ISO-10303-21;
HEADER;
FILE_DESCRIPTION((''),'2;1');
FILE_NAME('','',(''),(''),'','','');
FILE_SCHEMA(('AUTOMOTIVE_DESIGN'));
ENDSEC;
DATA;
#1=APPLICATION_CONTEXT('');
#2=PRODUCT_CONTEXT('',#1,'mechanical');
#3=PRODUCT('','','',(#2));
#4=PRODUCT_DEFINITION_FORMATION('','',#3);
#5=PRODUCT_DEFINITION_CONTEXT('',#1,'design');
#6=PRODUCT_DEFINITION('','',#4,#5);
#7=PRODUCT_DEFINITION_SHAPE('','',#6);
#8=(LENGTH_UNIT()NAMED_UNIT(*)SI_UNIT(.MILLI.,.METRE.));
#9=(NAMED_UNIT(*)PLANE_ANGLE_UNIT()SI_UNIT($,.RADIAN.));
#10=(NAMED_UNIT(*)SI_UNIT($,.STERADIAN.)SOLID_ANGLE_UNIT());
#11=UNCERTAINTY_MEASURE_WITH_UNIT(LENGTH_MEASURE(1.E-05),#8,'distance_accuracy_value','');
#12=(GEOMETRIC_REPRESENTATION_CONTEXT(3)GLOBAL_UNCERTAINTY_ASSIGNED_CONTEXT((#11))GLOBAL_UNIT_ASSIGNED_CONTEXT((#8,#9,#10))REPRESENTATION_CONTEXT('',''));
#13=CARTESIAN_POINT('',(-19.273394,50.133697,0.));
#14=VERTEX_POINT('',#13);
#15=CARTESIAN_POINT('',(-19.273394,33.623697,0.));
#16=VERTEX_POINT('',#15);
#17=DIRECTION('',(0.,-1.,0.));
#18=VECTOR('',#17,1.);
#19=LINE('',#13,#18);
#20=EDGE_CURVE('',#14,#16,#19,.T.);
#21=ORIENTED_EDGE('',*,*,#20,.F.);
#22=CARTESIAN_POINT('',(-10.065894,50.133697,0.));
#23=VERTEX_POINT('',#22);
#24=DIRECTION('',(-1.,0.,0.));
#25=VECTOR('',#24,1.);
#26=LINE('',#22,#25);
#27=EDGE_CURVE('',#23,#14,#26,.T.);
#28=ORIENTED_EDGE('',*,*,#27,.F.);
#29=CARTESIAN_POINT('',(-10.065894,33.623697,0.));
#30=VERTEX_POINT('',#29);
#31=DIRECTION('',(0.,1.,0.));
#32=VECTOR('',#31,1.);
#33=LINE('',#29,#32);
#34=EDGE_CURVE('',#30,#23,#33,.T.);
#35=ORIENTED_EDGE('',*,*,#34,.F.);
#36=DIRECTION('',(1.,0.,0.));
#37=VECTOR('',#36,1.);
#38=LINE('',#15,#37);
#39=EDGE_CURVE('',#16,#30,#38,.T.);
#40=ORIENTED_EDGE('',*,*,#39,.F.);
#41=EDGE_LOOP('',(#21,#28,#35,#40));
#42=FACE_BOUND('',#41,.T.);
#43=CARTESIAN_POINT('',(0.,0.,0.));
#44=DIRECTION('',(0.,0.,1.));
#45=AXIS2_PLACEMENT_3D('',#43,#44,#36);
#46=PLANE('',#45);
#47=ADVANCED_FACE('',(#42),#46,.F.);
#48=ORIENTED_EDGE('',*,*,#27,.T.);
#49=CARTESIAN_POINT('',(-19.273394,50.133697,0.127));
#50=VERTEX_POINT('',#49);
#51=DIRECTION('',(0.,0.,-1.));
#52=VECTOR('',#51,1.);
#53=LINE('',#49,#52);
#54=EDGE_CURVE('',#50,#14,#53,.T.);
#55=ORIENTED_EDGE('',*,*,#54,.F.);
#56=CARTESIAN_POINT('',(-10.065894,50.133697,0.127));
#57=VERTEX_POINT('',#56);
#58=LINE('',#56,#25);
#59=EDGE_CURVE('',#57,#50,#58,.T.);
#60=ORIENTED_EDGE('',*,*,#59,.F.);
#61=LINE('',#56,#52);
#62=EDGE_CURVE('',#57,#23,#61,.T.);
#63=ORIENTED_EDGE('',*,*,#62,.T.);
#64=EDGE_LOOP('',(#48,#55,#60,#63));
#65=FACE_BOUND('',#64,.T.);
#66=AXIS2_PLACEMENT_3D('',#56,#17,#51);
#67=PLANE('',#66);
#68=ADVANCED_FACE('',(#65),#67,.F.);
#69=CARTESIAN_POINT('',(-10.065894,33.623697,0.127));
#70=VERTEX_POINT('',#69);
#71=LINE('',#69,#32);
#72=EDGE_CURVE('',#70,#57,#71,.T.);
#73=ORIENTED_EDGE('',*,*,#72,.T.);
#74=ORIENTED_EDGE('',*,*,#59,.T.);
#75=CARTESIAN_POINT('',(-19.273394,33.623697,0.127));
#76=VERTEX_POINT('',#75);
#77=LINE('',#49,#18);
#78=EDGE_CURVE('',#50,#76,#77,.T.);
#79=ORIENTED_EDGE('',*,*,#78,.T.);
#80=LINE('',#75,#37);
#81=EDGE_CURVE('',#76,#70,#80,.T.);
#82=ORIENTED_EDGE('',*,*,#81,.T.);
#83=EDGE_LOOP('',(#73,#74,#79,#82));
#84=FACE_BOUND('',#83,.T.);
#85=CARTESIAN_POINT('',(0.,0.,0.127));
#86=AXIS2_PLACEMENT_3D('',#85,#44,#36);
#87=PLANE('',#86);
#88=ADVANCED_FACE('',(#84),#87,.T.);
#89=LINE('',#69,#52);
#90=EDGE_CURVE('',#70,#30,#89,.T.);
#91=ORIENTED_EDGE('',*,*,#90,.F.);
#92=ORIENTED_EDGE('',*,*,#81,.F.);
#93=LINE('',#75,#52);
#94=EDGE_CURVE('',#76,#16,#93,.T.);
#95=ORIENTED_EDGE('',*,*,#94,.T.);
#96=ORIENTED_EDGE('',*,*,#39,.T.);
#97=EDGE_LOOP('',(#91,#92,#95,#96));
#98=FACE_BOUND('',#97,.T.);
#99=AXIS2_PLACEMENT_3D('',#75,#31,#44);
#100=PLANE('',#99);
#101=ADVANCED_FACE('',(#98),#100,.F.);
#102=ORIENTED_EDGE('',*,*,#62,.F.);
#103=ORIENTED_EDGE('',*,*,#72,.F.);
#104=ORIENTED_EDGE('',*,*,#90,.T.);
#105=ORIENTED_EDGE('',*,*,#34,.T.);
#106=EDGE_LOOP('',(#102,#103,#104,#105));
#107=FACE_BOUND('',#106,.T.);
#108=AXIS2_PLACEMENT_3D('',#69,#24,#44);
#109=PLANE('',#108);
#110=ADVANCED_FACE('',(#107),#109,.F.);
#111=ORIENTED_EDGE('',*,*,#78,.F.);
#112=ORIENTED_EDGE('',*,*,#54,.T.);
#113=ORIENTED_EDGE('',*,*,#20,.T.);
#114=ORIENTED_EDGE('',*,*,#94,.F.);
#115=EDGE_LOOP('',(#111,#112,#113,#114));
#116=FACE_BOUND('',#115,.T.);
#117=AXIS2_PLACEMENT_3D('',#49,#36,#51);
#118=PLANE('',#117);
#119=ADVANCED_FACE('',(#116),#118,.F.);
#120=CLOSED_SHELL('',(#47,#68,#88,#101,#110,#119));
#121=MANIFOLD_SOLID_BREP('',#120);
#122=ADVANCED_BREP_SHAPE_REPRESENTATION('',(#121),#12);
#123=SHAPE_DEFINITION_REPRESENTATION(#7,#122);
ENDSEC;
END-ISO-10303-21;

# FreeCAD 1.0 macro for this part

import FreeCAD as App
import Part
import Sketcher
from FreeCAD import Vector
Q = App.Units.Quantity

doc = App.newDocument("Part")
params = doc.addObject("Spreadsheet::Sheet", "Params")
for row, (alias, value) in enumerate([
    ("sketch1_height", "0.65 in"),
    ("pad1_length", "0.005 in"),
], start=1):
    params.set(f"A{row}", alias)
    params.set(f"B{row}", "=" + value)
    params.setAlias(f"B{row}", alias)

body = doc.addObject("PartDesign::Body", "Body")

# Sketch on XY plane
sketch1 = body.newObject("Sketcher::SketchObject", "Sketch")
sketch1.AttachmentSupport = (doc.getObject("XY_Plane"), [""])
sketch1.MapMode = "FlatFace"
sketch1.addGeometry(Part.LineSegment(Vector(-19, 50, 0), Vector(-19, 34, 0)), False)
sketch1.addGeometry(Part.LineSegment(Vector(-19, 34, 0), Vector(-10, 34, 0)), False)
sketch1.addGeometry(Part.LineSegment(Vector(-10, 34, 0), Vector(-10, 50, 0)), False)
sketch1.addGeometry(Part.LineSegment(Vector(-10, 50, 0), Vector(-19, 50, 0)), False)
sketch1.addConstraint(Sketcher.Constraint("Coincident", 0, 2, 1, 1))
sketch1.addConstraint(Sketcher.Constraint("Coincident", 1, 2, 2, 1))
sketch1.addConstraint(Sketcher.Constraint("Coincident", 2, 2, 3, 1))
sketch1.addConstraint(Sketcher.Constraint("Coincident", 3, 2, 0, 1))
sketch1.addConstraint(Sketcher.Constraint("Vertical", 0))
sketch1.addConstraint(Sketcher.Constraint("Horizontal", 1))
sketch1.addConstraint(Sketcher.Constraint("Vertical", 2))
sketch1.addConstraint(Sketcher.Constraint("Horizontal", 3))
sketch1.addConstraint(Sketcher.Constraint("DistanceY", 0, 2, 0, 1, Q("0.65 in")))
sketch1.addConstraint(Sketcher.Constraint("DistanceX", 1, 1, 1, 2, Q("0.3625 in")))
sketch1.addConstraint(Sketcher.Constraint("DistanceX", 0, 2, -1, 1, Q("19.273394 mm")))
sketch1.addConstraint(Sketcher.Constraint("DistanceY", -1, 1, 0, 2, Q("33.623697 mm")))
sketch1.setExpression("Constraints[8]", "Params.sketch1_height")
pad1 = body.newObject("PartDesign::Pad", "Pad")
pad1.Profile = sketch1
pad1.setExpression("Length", "Params.pad1_length")

doc.recompute()
